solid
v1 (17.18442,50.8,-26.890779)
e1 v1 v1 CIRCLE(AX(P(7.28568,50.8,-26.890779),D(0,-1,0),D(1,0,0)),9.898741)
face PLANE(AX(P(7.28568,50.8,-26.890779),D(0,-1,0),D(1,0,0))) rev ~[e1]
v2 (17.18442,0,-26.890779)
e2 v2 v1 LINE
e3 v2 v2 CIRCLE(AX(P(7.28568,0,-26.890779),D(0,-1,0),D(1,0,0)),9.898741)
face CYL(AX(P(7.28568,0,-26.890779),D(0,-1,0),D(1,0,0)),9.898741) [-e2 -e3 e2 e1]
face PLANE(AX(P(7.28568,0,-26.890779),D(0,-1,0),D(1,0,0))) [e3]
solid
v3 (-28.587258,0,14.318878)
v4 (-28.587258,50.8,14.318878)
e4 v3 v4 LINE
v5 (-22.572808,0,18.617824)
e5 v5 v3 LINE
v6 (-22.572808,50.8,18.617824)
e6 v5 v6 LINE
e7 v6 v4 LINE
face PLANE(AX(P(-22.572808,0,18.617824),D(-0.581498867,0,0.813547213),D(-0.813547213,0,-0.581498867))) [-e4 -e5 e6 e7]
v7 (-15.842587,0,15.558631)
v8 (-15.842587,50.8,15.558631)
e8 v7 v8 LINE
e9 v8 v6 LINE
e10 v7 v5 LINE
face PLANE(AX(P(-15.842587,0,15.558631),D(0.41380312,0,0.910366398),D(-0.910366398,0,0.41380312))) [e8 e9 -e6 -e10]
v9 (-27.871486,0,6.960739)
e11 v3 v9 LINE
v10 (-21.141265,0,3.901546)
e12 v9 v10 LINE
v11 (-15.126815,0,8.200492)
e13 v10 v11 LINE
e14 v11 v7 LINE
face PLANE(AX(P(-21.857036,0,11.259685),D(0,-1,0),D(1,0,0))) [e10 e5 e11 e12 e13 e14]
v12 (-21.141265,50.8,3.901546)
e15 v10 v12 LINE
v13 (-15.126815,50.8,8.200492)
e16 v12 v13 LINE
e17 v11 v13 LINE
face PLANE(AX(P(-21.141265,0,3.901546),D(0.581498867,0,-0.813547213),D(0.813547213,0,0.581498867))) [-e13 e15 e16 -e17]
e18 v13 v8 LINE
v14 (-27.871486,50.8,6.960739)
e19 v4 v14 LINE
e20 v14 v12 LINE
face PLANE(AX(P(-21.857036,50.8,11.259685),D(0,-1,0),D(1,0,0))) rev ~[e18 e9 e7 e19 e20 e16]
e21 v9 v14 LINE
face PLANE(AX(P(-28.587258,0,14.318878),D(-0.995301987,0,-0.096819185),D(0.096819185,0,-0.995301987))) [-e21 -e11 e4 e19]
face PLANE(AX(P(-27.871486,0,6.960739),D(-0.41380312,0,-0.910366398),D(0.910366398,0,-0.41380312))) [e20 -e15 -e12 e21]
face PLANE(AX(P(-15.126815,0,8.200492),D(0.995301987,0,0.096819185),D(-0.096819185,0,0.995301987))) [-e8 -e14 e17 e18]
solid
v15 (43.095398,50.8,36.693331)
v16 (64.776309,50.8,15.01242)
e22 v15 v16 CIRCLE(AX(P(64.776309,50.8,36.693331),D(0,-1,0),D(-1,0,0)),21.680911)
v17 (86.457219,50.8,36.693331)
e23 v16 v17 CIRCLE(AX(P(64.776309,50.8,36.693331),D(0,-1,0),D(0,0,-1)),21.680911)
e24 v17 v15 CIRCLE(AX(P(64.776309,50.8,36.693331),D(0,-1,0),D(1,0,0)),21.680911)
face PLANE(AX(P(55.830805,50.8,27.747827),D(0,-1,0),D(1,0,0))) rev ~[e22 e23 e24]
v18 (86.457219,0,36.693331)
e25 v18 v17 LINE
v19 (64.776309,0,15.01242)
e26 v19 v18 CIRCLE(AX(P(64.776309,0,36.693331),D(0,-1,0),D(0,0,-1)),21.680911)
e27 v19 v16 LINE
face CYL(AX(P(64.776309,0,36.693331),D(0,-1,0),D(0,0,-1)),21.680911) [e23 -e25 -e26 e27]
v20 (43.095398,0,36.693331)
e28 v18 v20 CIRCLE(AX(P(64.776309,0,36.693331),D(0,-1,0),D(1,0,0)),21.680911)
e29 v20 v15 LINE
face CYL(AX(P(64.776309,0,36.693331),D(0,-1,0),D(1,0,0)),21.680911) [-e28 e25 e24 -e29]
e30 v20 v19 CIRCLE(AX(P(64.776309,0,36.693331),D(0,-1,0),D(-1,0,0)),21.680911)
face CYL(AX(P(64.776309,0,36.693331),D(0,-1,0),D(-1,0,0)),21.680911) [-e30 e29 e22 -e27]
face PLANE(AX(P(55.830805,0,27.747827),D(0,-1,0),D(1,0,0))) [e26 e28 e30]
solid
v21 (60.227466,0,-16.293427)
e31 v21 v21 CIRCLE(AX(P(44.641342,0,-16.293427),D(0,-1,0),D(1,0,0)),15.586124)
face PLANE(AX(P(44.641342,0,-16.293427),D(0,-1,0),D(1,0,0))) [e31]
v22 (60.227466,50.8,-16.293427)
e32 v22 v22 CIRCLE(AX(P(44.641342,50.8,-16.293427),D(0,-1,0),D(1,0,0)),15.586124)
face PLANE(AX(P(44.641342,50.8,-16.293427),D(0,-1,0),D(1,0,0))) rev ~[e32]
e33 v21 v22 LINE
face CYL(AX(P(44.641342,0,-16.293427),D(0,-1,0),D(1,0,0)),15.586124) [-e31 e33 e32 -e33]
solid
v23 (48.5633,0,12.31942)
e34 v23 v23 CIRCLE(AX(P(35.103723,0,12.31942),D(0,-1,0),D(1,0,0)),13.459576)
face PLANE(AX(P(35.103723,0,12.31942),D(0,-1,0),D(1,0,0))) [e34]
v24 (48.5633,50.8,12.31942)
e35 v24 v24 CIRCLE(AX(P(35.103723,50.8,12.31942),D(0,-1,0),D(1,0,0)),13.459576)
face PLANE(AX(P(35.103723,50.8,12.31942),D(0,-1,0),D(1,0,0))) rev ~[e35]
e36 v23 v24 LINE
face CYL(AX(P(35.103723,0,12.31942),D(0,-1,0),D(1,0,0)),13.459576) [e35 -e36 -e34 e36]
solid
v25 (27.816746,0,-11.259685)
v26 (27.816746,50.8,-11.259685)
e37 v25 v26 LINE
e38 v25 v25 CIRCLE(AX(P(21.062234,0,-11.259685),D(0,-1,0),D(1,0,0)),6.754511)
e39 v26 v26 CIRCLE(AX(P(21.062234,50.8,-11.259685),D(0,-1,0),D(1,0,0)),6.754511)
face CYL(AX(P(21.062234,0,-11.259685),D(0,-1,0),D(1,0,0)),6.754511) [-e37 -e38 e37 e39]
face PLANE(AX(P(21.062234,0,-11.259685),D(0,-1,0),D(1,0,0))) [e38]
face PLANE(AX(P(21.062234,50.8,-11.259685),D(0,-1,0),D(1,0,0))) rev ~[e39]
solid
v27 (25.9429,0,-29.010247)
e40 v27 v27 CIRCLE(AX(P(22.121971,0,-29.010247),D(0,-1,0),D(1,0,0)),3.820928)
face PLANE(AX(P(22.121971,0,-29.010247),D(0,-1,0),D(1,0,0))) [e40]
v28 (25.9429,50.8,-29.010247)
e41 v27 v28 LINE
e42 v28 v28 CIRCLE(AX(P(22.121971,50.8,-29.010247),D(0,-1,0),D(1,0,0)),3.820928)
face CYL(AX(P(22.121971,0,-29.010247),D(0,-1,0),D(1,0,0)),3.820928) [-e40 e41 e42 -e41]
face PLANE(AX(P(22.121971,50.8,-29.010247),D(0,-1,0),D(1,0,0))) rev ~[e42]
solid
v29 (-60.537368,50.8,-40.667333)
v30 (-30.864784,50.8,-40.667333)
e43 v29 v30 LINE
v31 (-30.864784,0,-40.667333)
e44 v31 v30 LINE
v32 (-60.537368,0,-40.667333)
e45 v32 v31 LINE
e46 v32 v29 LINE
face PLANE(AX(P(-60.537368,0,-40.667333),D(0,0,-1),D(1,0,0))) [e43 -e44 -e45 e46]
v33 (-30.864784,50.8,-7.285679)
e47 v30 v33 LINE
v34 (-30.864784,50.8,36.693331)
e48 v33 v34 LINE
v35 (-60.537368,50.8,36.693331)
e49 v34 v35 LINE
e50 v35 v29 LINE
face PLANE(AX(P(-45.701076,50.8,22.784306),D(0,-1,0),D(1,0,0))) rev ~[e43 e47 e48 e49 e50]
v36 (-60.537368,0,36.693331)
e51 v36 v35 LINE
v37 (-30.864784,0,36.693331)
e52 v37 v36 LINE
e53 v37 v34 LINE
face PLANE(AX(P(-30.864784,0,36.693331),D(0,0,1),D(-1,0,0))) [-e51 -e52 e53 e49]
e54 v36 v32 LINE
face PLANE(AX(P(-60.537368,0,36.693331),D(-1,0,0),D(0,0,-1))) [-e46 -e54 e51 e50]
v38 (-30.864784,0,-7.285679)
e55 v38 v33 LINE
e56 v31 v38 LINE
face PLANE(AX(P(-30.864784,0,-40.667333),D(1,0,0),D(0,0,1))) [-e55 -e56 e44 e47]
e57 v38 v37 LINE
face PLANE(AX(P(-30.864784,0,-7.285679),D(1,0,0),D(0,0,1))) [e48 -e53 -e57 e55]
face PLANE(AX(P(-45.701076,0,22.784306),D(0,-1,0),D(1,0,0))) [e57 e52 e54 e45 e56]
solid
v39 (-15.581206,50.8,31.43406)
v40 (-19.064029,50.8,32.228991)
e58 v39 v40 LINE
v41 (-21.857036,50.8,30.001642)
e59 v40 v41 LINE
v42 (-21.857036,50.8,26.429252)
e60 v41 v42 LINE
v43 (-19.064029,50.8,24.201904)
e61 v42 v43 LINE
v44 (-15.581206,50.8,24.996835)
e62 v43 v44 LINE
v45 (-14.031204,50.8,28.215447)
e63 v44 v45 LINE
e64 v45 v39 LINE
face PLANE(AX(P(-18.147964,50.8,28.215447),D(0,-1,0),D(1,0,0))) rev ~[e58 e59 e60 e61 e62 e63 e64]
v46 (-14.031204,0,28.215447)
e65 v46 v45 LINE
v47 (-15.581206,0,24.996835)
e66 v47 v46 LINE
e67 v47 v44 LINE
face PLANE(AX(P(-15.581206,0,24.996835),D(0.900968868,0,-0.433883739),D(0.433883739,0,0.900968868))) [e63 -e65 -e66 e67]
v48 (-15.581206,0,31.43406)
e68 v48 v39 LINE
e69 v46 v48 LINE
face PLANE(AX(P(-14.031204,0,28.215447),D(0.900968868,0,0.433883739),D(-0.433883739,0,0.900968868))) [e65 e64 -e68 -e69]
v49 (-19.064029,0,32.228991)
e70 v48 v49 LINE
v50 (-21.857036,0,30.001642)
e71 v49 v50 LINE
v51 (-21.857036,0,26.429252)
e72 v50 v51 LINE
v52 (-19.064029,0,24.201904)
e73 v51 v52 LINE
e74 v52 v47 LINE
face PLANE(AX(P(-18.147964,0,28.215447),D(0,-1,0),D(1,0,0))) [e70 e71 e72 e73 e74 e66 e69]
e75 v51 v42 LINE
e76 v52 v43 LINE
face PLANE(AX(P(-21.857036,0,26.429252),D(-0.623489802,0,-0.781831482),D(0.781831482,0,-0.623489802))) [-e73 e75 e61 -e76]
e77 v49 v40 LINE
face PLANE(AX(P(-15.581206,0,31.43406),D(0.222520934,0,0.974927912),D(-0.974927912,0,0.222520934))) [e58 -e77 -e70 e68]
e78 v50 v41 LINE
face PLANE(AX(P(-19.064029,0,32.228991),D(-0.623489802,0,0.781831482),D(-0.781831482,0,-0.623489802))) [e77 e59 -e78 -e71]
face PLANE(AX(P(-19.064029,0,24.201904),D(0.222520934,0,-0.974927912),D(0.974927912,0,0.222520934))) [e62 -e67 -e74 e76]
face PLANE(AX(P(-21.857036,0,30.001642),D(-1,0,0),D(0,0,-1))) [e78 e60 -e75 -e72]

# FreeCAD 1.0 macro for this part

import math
import FreeCAD as App
import Part
import Sketcher

V = App.Vector
Q = App.Units.Quantity


def add_polygon(sketch, points):
    """Adds a closed chain of lines whose ends are joined by coincident constraints."""
    first, n = sketch.GeometryCount, len(points)
    for a, b in zip(points, points[1:] + points[:1]):
        sketch.addGeometry(Part.LineSegment(App.Vector(*a, 0), App.Vector(*b, 0)), False)
    for i in range(n):
        sketch.addConstraint(Sketcher.Constraint("Coincident", first + i, 2, first + (i + 1) % n, 1))

doc = App.newDocument("Part")
params = doc.addObject("Spreadsheet::Sheet", "Params")
for row, (alias, value) in enumerate([
    ("pad1_length", "2 in"),
    ("pad2_length", "2 in"),
    ("pad3_length", "2 in"),
    ("pad4_length", "2 in"),
    ("pad5_length", "2 in"),
    ("pad6_length", "2 in"),
    ("pad7_length", "2 in"),
    ("pad8_length", "2 in"),
    ("pad9_length", "2 in"),
], start=1):
    params.set(f"A{row}", alias)
    params.set(f"B{row}", "=" + value)
    params.setAlias(f"B{row}", alias)

body = doc.addObject("PartDesign::Body", "Body")

sketch1 = body.newObject("Sketcher::SketchObject", "Sketch")
sketch1.AttachmentSupport = (doc.getObject("XZ_Plane"), [""])
sketch1.MapMode = "FlatFace"
add_polygon(sketch1, [(-31, 37), (-61, 37), (-61, -41), (-31, -41), (-31, -7)])
sketch1.addConstraint(Sketcher.Constraint("Horizontal", 0))
sketch1.addConstraint(Sketcher.Constraint("Vertical", 1))
sketch1.addConstraint(Sketcher.Constraint("Horizontal", 2))
sketch1.addConstraint(Sketcher.Constraint("Vertical", 3))
sketch1.addConstraint(Sketcher.Constraint("Vertical", 4))
sketch1.addConstraint(Sketcher.Constraint("DistanceY", 4, 1, 4, 2, Q("43.97901 mm")))
sketch1.addConstraint(Sketcher.Constraint("DistanceX", 0, 2, 0, 1, Q("29.672584 mm")))
sketch1.addConstraint(Sketcher.Constraint("DistanceY", 1, 2, 1, 1, Q("77.360664 mm")))
sketch1.addConstraint(Sketcher.Constraint("DistanceX", 0, 2, -1, 1, Q("60.537368 mm")))
sketch1.addConstraint(Sketcher.Constraint("DistanceY", -1, 1, 0, 2, Q("36.693331 mm")))
pad1 = body.newObject("PartDesign::Pad", "Pad")
pad1.Profile = sketch1
pad1.setExpression("Length", "Params.pad1_length")
pad1.Reversed = True
body2 = doc.addObject("PartDesign::Body", "Body001")

sketch2 = body2.newObject("Sketcher::SketchObject", "Sketch001")
sketch2.AttachmentSupport = (doc.getObject("XZ_Plane001"), [""])
sketch2.MapMode = "FlatFace"
sketch2.addGeometry(Part.Circle(V(7, -27, 0), V(0, 0, 1), 10), False)
sketch2.addConstraint(Sketcher.Constraint("Diameter", 0, Q("19.797481 mm")))
sketch2.addConstraint(Sketcher.Constraint("DistanceX", -1, 1, 0, 3, Q("7.28568 mm")))
sketch2.addConstraint(Sketcher.Constraint("DistanceY", 0, 3, -1, 1, Q("26.890779 mm")))
pad2 = body2.newObject("PartDesign::Pad", "Pad001")
pad2.Profile = sketch2
pad2.setExpression("Length", "Params.pad2_length")
pad2.Reversed = True
body3 = doc.addObject("PartDesign::Body", "Body002")

sketch3 = body3.newObject("Sketcher::SketchObject", "Sketch002")
sketch3.AttachmentSupport = (doc.getObject("XZ_Plane002"), [""])
sketch3.MapMode = "FlatFace"
add_polygon(sketch3, [(-28, 7), (-21, 4), (-15, 8), (-16, 16), (-23, 19), (-29, 14)])
sketch3.addConstraint(Sketcher.Constraint("Parallel", 0, 3))
sketch3.addConstraint(Sketcher.Constraint("Parallel", 1, 4))
sketch3.addConstraint(Sketcher.Constraint("Parallel", 2, 5))
sketch3.addConstraint(Sketcher.Constraint("Equal", 0, 1))
sketch3.addConstraint(Sketcher.Constraint("Equal", 1, 2))
sketch3.addConstraint(Sketcher.Constraint("Equal", 2, 3))
sketch3.addConstraint(Sketcher.Constraint("DistanceX", 5, 2, 2, 2, Q("12.028899 mm")))
sketch3.addConstraint(Sketcher.Constraint("Distance", 0, Q("7.392871 mm")))
sketch3.addConstraint(Sketcher.Constraint("DistanceY", -1, 1, 2, 2, Q("15.558631 mm")))
sketch3.addConstraint(Sketcher.Constraint("DistanceX", 3, 2, -1, 1, Q("22.572808 mm")))
sketch3.addConstraint(Sketcher.Constraint("DistanceY", -1, 1, 4, 2, Q("14.318878 mm")))
sketch3.addConstraint(Sketcher.Constraint("DistanceY", -1, 1, 5, 2, Q("6.960739 mm")))
pad3 = body3.newObject("PartDesign::Pad", "Pad002")
pad3.Profile = sketch3
pad3.setExpression("Length", "Params.pad3_length")
pad3.Reversed = True
body4 = doc.addObject("PartDesign::Body", "Body003")

sketch4 = body4.newObject("Sketcher::SketchObject", "Sketch003")
sketch4.AttachmentSupport = (doc.getObject("XZ_Plane003"), [""])
sketch4.MapMode = "FlatFace"
add_polygon(sketch4, [(-21.9, 30), (-21.9, 26.4), (-19.1, 24.2), (-15.6, 25), (-14, 28.2), (-15.6, 31.4), (-19.1, 32.2)])
sketch4.addConstraint(Sketcher.Constraint("Vertical", 0))
sketch4.addConstraint(Sketcher.Constraint("Vertical", 2, 2, 4, 2))
sketch4.addConstraint(Sketcher.Constraint("Vertical", 1, 2, 5, 2))
sketch4.addConstraint(Sketcher.Constraint("Equal", 1, 2))
sketch4.addConstraint(Sketcher.Constraint("Equal", 2, 3))
sketch4.addConstraint(Sketcher.Constraint("Equal", 3, 4))
sketch4.addConstraint(Sketcher.Constraint("Equal", 4, 5))
sketch4.addConstraint(Sketcher.Constraint("Equal", 5, 6))
sketch4.addConstraint(Sketcher.Constraint("DistanceY", 0, 2, 0, 1, Q("3.57239 mm")))
sketch4.addConstraint(Sketcher.Constraint("DistanceX", 2, 2, 3, 2, Q("1.550002 mm")))
sketch4.addConstraint(Sketcher.Constraint("Distance", 1, Q("3.57239 mm")))
sketch4.addConstraint(Sketcher.Constraint("DistanceX", 1, 2, -1, 1, Q("19.064029 mm")))
sketch4.addConstraint(Sketcher.Constraint("DistanceY", -1, 1, 4, 2, Q("31.43406 mm")))
sketch4.addConstraint(Sketcher.Constraint("DistanceY", -1, 1, 5, 2, Q("32.228991 mm")))
pad4 = body4.newObject("PartDesign::Pad", "Pad003")
pad4.Profile = sketch4
pad4.setExpression("Length", "Params.pad4_length")
pad4.Reversed = True
body5 = doc.addObject("PartDesign::Body", "Body004")

sketch5 = body5.newObject("Sketcher::SketchObject", "Sketch004")
sketch5.AttachmentSupport = (doc.getObject("XZ_Plane004"), [""])
sketch5.MapMode = "FlatFace"
sketch5.addGeometry(Part.Circle(V(35, 12, 0), V(0, 0, 1), 13), False)
sketch5.addConstraint(Sketcher.Constraint("Diameter", 0, Q("26.919152 mm")))
sketch5.addConstraint(Sketcher.Constraint("DistanceY", -1, 1, 0, 3, Q("12.31942 mm")))
sketch5.addConstraint(Sketcher.Constraint("DistanceX", -1, 1, 0, 3, Q("35.103723 mm")))
pad5 = body5.newObject("PartDesign::Pad", "Pad004")
pad5.Profile = sketch5
pad5.setExpression("Length", "Params.pad5_length")
pad5.Reversed = True
body6 = doc.addObject("PartDesign::Body", "Body005")

sketch6 = body6.newObject("Sketcher::SketchObject", "Sketch005")
sketch6.AttachmentSupport = (doc.getObject("XZ_Plane005"), [""])
sketch6.MapMode = "FlatFace"
sketch6.addGeometry(Part.ArcOfCircle(Part.Circle(V(65, 37, 0), V(0, 0, 1), 22), math.radians(180), math.radians(270)), False)
sketch6.addGeometry(Part.ArcOfCircle(Part.Circle(V(65, 37, 0), V(0, 0, 1), 22), math.radians(-90), math.radians(0)), False)
sketch6.addGeometry(Part.ArcOfCircle(Part.Circle(V(65, 37, 0), V(0, 0, 1), 22), math.radians(0), math.radians(180)), False)
sketch6.addConstraint(Sketcher.Constraint("Tangent", 0, 2, 1, 1))
sketch6.addConstraint(Sketcher.Constraint("Tangent", 1, 2, 2, 1))
sketch6.addConstraint(Sketcher.Constraint("Tangent", 2, 2, 0, 1))
sketch6.addConstraint(Sketcher.Constraint("Horizontal", 2, 3, 1, 2))
sketch6.addConstraint(Sketcher.Constraint("Horizontal", 1, 2, 2, 2))
sketch6.addConstraint(Sketcher.Constraint("Vertical", 2, 3, 0, 2))
sketch6.addConstraint(Sketcher.Constraint("Radius", 0, Q("21.680911 mm")))
sketch6.addConstraint(Sketcher.Constraint("DistanceX", -1, 1, 2, 2, Q("43.095398 mm")))
sketch6.addConstraint(Sketcher.Constraint("DistanceY", -1, 1, 0, 3, Q("36.693331 mm")))
pad6 = body6.newObject("PartDesign::Pad", "Pad005")
pad6.Profile = sketch6
pad6.setExpression("Length", "Params.pad6_length")
pad6.Reversed = True
body7 = doc.addObject("PartDesign::Body", "Body006")

sketch7 = body7.newObject("Sketcher::SketchObject", "Sketch006")
sketch7.AttachmentSupport = (doc.getObject("XZ_Plane006"), [""])
sketch7.MapMode = "FlatFace"
sketch7.addGeometry(Part.Circle(V(45, -16, 0), V(0, 0, 1), 16), False)
sketch7.addConstraint(Sketcher.Constraint("Diameter", 0, Q("31.172248 mm")))
sketch7.addConstraint(Sketcher.Constraint("DistanceX", -1, 1, 0, 3, Q("44.641342 mm")))
sketch7.addConstraint(Sketcher.Constraint("DistanceY", 0, 3, -1, 1, Q("16.293427 mm")))
pad7 = body7.newObject("PartDesign::Pad", "Pad006")
pad7.Profile = sketch7
pad7.setExpression("Length", "Params.pad7_length")
pad7.Reversed = True
body8 = doc.addObject("PartDesign::Body", "Body007")

sketch8 = body8.newObject("Sketcher::SketchObject", "Sketch007")
sketch8.AttachmentSupport = (doc.getObject("XZ_Plane007"), [""])
sketch8.MapMode = "FlatFace"
sketch8.addGeometry(Part.Circle(V(21, -11, 0), V(0, 0, 1), 7), False)
sketch8.addConstraint(Sketcher.Constraint("Diameter", 0, Q("13.509022 mm")))
sketch8.addConstraint(Sketcher.Constraint("DistanceX", -1, 1, 0, 3, Q("21.062234 mm")))
sketch8.addConstraint(Sketcher.Constraint("DistanceY", 0, 3, -1, 1, Q("11.259685 mm")))
pad8 = body8.newObject("PartDesign::Pad", "Pad007")
pad8.Profile = sketch8
pad8.setExpression("Length", "Params.pad8_length")
pad8.Reversed = True
body9 = doc.addObject("PartDesign::Body", "Body008")

sketch9 = body9.newObject("Sketcher::SketchObject", "Sketch008")
sketch9.AttachmentSupport = (doc.getObject("XZ_Plane008"), [""])
sketch9.MapMode = "FlatFace"
sketch9.addGeometry(Part.Circle(V(22.1, -29, 0), V(0, 0, 1), 3.8), False)
sketch9.addConstraint(Sketcher.Constraint("Diameter", 0, Q("7.641856 mm")))
sketch9.addConstraint(Sketcher.Constraint("DistanceX", -1, 1, 0, 3, Q("22.121971 mm")))
sketch9.addConstraint(Sketcher.Constraint("DistanceY", 0, 3, -1, 1, Q("29.010247 mm")))
pad9 = body9.newObject("PartDesign::Pad", "Pad008")
pad9.Profile = sketch9
pad9.setExpression("Length", "Params.pad9_length")
pad9.Reversed = True

doc.recompute()
